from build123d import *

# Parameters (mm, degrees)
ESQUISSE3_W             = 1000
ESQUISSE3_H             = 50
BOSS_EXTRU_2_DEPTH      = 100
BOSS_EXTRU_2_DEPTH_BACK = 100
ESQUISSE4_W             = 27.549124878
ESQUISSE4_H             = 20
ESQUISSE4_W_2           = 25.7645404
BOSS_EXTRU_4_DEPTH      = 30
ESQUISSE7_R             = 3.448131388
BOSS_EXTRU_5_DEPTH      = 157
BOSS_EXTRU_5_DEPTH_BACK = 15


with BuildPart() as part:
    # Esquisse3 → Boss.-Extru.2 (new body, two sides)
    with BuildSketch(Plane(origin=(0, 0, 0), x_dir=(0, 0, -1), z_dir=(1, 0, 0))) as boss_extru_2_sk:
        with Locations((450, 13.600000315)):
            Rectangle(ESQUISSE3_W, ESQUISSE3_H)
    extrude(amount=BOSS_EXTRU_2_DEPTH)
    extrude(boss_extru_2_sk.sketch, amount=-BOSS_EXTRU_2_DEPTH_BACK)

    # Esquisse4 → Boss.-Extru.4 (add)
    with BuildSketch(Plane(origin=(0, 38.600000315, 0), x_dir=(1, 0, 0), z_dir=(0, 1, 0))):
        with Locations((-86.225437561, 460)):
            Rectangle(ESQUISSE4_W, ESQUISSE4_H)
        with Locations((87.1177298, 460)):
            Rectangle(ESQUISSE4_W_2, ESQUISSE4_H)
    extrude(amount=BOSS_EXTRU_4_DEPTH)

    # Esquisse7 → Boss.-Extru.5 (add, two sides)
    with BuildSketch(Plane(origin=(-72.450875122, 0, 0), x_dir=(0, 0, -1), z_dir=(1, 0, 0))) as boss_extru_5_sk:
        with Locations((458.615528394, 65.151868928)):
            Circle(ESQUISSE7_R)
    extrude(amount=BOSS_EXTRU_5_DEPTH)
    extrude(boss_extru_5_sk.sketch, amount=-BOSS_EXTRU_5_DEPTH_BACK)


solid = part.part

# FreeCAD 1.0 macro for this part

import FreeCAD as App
import Part
import Sketcher
Q = App.Units.Quantity

doc = App.newDocument("Part")
body = doc.addObject("PartDesign::Body", "Body")

# Sketch on YZ plane
sketch1 = body.newObject("Sketcher::SketchObject", "Sketch")
sketch1.AttachmentSupport = (doc.getObject("YZ_Plane"), [""])
sketch1.MapMode = "FlatFace"
sketch1.addGeometry(Part.LineSegment(App.Vector(39, 50, 0), App.Vector(-11, 50, 0)), False)
sketch1.addGeometry(Part.LineSegment(App.Vector(-11, 50, 0), App.Vector(-11, -950, 0)), False)
sketch1.addGeometry(Part.LineSegment(App.Vector(-11, -950, 0), App.Vector(39, -950, 0)), False)
sketch1.addGeometry(Part.LineSegment(App.Vector(39, -950, 0), App.Vector(39, 50, 0)), False)
sketch1.addConstraint(Sketcher.Constraint("Coincident", 0, 2, 1, 1))
sketch1.addConstraint(Sketcher.Constraint("Coincident", 1, 2, 2, 1))
sketch1.addConstraint(Sketcher.Constraint("Coincident", 2, 2, 3, 1))
sketch1.addConstraint(Sketcher.Constraint("Coincident", 3, 2, 0, 1))
sketch1.addConstraint(Sketcher.Constraint("Horizontal", 0))
sketch1.addConstraint(Sketcher.Constraint("Vertical", 1))
sketch1.addConstraint(Sketcher.Constraint("Horizontal", 2))
sketch1.addConstraint(Sketcher.Constraint("Vertical", 3))
sketch1.addConstraint(Sketcher.Constraint("DistanceX", 0, 2, 0, 1, Q("50 mm")))
sketch1.addConstraint(Sketcher.Constraint("DistanceY", 1, 2, 1, 1, Q("1000 mm")))
sketch1.addConstraint(Sketcher.Constraint("DistanceY", -1, 1, 0, 2, Q("50 mm")))
sketch1.addConstraint(Sketcher.Constraint("DistanceX", 0, 2, -1, 1, Q("11.4 mm")))
pad1 = body.newObject("PartDesign::Pad", "Pad")
pad1.Profile = sketch1
pad1.Type = "TwoLengths"
pad1.Length = 100
pad1.Length2 = 100

# Sketch on XZ plane
sketch2 = body.newObject("Sketcher::SketchObject", "Sketch001")
sketch2.AttachmentSupport = (doc.getObject("XZ_Plane"), [""])
sketch2.MapMode = "FlatFace"
sketch2.AttachmentOffset = App.Placement(App.Vector(0, 0, -38.6), App.Rotation())
sketch2.addGeometry(Part.LineSegment(App.Vector(-100, -470, 0), App.Vector(-100, -450, 0)), False)
sketch2.addGeometry(Part.LineSegment(App.Vector(-100, -450, 0), App.Vector(-72, -450, 0)), False)
sketch2.addGeometry(Part.LineSegment(App.Vector(-72, -450, 0), App.Vector(-72, -470, 0)), False)
sketch2.addGeometry(Part.LineSegment(App.Vector(-72, -470, 0), App.Vector(-100, -470, 0)), False)
sketch2.addGeometry(Part.LineSegment(App.Vector(74, -470, 0), App.Vector(74, -450, 0)), False)
sketch2.addGeometry(Part.LineSegment(App.Vector(74, -450, 0), App.Vector(100, -450, 0)), False)
sketch2.addGeometry(Part.LineSegment(App.Vector(100, -450, 0), App.Vector(100, -470, 0)), False)
sketch2.addGeometry(Part.LineSegment(App.Vector(100, -470, 0), App.Vector(74, -470, 0)), False)
sketch2.addConstraint(Sketcher.Constraint("Coincident", 0, 2, 1, 1))
sketch2.addConstraint(Sketcher.Constraint("Coincident", 1, 2, 2, 1))
sketch2.addConstraint(Sketcher.Constraint("Coincident", 2, 2, 3, 1))
sketch2.addConstraint(Sketcher.Constraint("Coincident", 3, 2, 0, 1))
sketch2.addConstraint(Sketcher.Constraint("Coincident", 4, 2, 5, 1))
sketch2.addConstraint(Sketcher.Constraint("Coincident", 5, 2, 6, 1))
sketch2.addConstraint(Sketcher.Constraint("Coincident", 6, 2, 7, 1))
sketch2.addConstraint(Sketcher.Constraint("Coincident", 7, 2, 4, 1))
sketch2.addConstraint(Sketcher.Constraint("Vertical", 0))
sketch2.addConstraint(Sketcher.Constraint("Horizontal", 1))
sketch2.addConstraint(Sketcher.Constraint("Vertical", 2))
sketch2.addConstraint(Sketcher.Constraint("Horizontal", 3))
sketch2.addConstraint(Sketcher.Constraint("Vertical", 4))
sketch2.addConstraint(Sketcher.Constraint("Horizontal", 5))
sketch2.addConstraint(Sketcher.Constraint("Vertical", 6))
sketch2.addConstraint(Sketcher.Constraint("Horizontal", 7))
sketch2.addConstraint(Sketcher.Constraint("Symmetric", 0, 2, 5, 2, -2))
sketch2.addConstraint(Sketcher.Constraint("Horizontal", 3, 2, 6, 2))
sketch2.addConstraint(Sketcher.Constraint("DistanceY", 0, 1, 0, 2, Q("20 mm")))
sketch2.addConstraint(Sketcher.Constraint("DistanceX", 0, 2, -1, 1, Q("100 mm")))
sketch2.addConstraint(Sketcher.Constraint("DistanceY", 0, 2, -1, 1, Q("450 mm")))
sketch2.addConstraint(Sketcher.Constraint("DistanceX", 5, 1, 5, 2, Q("25.76454 mm")))
sketch2.addConstraint(Sketcher.Constraint("DistanceX", 1, 1, 1, 2, Q("27.549125 mm")))
pad2 = body.newObject("PartDesign::Pad", "Pad001")
pad2.Profile = sketch2
pad2.Length = 30
pad2.Reversed = True

# Sketch on YZ plane
sketch3 = body.newObject("Sketcher::SketchObject", "Sketch002")
sketch3.AttachmentSupport = (doc.getObject("YZ_Plane"), [""])
sketch3.MapMode = "FlatFace"
sketch3.AttachmentOffset = App.Placement(App.Vector(0, 0, -72.450875), App.Rotation())
sketch3.addGeometry(Part.Circle(App.Vector(65.2, -458.6, 0), App.Vector(0, 0, 1), 3.4), False)
sketch3.addConstraint(Sketcher.Constraint("Diameter", 0, Q("6.896263 mm")))
sketch3.addConstraint(Sketcher.Constraint("DistanceX", -1, 1, 0, 3, Q("65.151869 mm")))
sketch3.addConstraint(Sketcher.Constraint("DistanceY", 0, 3, -1, 1, Q("458.615528 mm")))
pad3 = body.newObject("PartDesign::Pad", "Pad002")
pad3.Profile = sketch3
pad3.Type = "TwoLengths"
pad3.Length = 157
pad3.Length2 = 15

doc.recompute()
